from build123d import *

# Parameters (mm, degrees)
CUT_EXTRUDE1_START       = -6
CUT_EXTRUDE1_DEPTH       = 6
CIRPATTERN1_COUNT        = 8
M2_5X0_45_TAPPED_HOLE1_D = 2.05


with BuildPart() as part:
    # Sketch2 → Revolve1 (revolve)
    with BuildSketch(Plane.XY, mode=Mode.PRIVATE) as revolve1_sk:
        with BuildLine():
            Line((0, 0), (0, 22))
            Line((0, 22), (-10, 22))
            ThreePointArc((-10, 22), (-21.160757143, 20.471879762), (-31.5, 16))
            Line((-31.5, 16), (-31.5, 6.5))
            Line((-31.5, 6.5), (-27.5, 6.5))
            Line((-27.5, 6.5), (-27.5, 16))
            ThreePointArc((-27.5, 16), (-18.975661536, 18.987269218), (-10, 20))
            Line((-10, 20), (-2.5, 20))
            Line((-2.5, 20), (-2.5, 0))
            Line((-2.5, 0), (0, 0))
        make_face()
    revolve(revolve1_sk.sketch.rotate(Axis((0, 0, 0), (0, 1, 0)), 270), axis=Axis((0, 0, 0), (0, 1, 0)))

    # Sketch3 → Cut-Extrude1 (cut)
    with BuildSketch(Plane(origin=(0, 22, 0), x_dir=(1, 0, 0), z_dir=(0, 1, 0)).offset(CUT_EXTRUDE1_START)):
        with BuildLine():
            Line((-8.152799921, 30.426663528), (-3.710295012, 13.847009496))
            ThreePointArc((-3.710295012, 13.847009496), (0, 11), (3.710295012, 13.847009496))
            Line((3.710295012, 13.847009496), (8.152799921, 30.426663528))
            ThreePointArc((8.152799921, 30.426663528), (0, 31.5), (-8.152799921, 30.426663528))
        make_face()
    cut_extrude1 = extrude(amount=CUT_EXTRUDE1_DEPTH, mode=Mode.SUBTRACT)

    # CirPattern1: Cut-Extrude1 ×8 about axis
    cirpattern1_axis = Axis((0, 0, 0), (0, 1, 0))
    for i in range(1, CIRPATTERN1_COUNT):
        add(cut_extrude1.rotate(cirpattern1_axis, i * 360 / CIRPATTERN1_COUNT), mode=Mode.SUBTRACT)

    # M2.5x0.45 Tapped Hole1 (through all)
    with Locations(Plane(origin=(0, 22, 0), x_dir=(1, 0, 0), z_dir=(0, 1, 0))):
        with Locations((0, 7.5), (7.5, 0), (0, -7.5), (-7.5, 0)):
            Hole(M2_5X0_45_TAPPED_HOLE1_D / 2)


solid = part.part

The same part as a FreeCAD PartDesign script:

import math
import FreeCAD as App
import Part
import Sketcher
from FreeCAD import Vector
Q = App.Units.Quantity

doc = App.newDocument("Part")
body = doc.addObject("PartDesign::Body", "Body")

sketch1 = body.newObject("Sketcher::SketchObject", "Sketch")
sketch1.AttachmentSupport = (doc.getObject("XY_Plane"), [""])
sketch1.MapMode = "FlatFace"
sketch1.addGeometry([
    Part.LineSegment(Vector(0, 0, 0), Vector(0, 22, 0)),
    Part.LineSegment(Vector(0, 22, 0), Vector(-10, 22, 0)),
    Part.ArcOfCircle(Part.Circle(Vector(-10, -19.520833, 0), Vector(0, 0, 1), 41.520833), math.radians(90), math.radians(121.185622)),
    Part.LineSegment(Vector(-31.5, 16, 0), Vector(-31.5, 6.5, 0)),
    Part.LineSegment(Vector(-31.5, 6.5, 0), Vector(-27.5, 6.5, 0)),
    Part.LineSegment(Vector(-27.5, 6.5, 0), Vector(-27.5, 16, 0)),
    Part.ArcOfCircle(Part.Circle(Vector(-10, -20.28125, 0), Vector(0, 0, 1), 40.28125), math.radians(90), math.radians(115.750003)),
    Part.LineSegment(Vector(-10, 20, 0), Vector(-2.5, 20, 0)),
    Part.LineSegment(Vector(-2.5, 20, 0), Vector(-2.5, 0, 0)),
    Part.LineSegment(Vector(-2.5, 0, 0), Vector(0, 0, 0)),
], False)
sketch1.addConstraint([
    Sketcher.Constraint("Coincident", 0, 2, 1, 1),
    Sketcher.Constraint("Tangent", 1, 2, 2, 1),
    Sketcher.Constraint("Coincident", 2, 2, 3, 1),
    Sketcher.Constraint("Coincident", 3, 2, 4, 1),
    Sketcher.Constraint("Coincident", 4, 2, 5, 1),
    Sketcher.Constraint("Coincident", 5, 2, 6, 2),
    Sketcher.Constraint("Tangent", 6, 1, 7, 1),
    Sketcher.Constraint("Coincident", 7, 2, 8, 1),
    Sketcher.Constraint("Coincident", 8, 2, 9, 1),
    Sketcher.Constraint("Coincident", 9, 2, 0, 1),
    Sketcher.Constraint("Vertical", 0),
    Sketcher.Constraint("Horizontal", 1),
    Sketcher.Constraint("Vertical", 3),
    Sketcher.Constraint("Horizontal", 4),
    Sketcher.Constraint("Vertical", 5),
    Sketcher.Constraint("Horizontal", 7),
    Sketcher.Constraint("Vertical", 8),
    Sketcher.Constraint("Horizontal", 9),
    Sketcher.Constraint("Coincident", 9, 2, -1, 1),
    Sketcher.Constraint("Horizontal", 2, 2, 5, 2),
    Sketcher.Constraint("Vertical", 2, 3, 6, 3),
    Sketcher.Constraint("DistanceX", 1, 2, 1, 1, Q("10 mm")),
    Sketcher.Constraint("DistanceX", 4, 1, 4, 2, Q("4 mm")),
    Sketcher.Constraint("DistanceY", 0, 1, 0, 2, Q("22 mm")),
    Sketcher.Constraint("DistanceY", 8, 2, 8, 1, Q("20 mm")),
    Sketcher.Constraint("DistanceX", 7, 1, 7, 2, Q("7.5 mm")),
    Sketcher.Constraint("DistanceY", 3, 2, 3, 1, Q("9.5 mm")),
    Sketcher.Constraint("DistanceY", -1, 1, 2, 2, Q("16 mm")),
    Sketcher.Constraint("DistanceX", 5, 2, 7, 2, Q("25 mm")),
])
revolution = body.newObject("PartDesign::Revolution", "Revolution")
revolution.Profile = sketch1
revolution.ReferenceAxis = (sketch1, ["V_Axis"])
revolution.Angle = 360

sketch2 = body.newObject("Sketcher::SketchObject", "Sketch001")
sketch2.AttachmentSupport = (doc.getObject("XZ_Plane"), [""])
sketch2.MapMode = "FlatFace"
sketch2.AttachmentOffset = App.Placement(Vector(0, 0, -16), App.Rotation())
sketch2.addGeometry([
    Part.LineSegment(Vector(-8.1528, -30.426664, 0), Vector(-3.710295, -13.847009, 0)),
    Part.ArcOfCircle(Part.Circle(Vector(0, -14.84118, 0), Vector(0, 0, 1), 3.84118), math.radians(15), math.radians(165)),
    Part.LineSegment(Vector(3.710295, -13.847009, 0), Vector(8.1528, -30.426664, 0)),
    Part.ArcOfCircle(Part.Circle(Vector(0, 0, 0), Vector(0, 0, 1), 31.5), math.radians(-105), math.radians(-75)),
], False)
sketch2.addConstraint([
    Sketcher.Constraint("Tangent", 0, 2, 1, 2),
    Sketcher.Constraint("Tangent", 1, 1, 2, 1),
    Sketcher.Constraint("Coincident", 2, 2, 3, 2),
    Sketcher.Constraint("Coincident", 3, 1, 0, 1),
    Sketcher.Constraint("Coincident", 3, 3, -1, 1),
    Sketcher.Constraint("Symmetric", 0, 2, 1, 1, -2),
    Sketcher.Constraint("Radius", 3, Q("31.5 mm")),
    Sketcher.Constraint("Angle", 0, Q("75 deg")),
    Sketcher.Constraint("Radius", 1, Q("3.84118 mm")),
    Sketcher.Constraint("DistanceX", -1, 1, 2, 2, Q("8.1528 mm")),
])
pocket1 = body.newObject("PartDesign::Pocket", "Pocket")
pocket1.Profile = sketch2
pocket1.Length = 6
doc.recompute()

polarpattern = body.newObject("PartDesign::PolarPattern", "PolarPattern")
polarpattern.Originals = [pocket1]
polarpattern.Axis = (doc.getObject("Y_Axis"), [""])
polarpattern.Angle = 360
polarpattern.Occurrences = 8
body.Tip = polarpattern

sketch3 = body.newObject("Sketcher::SketchObject", "Sketch002")
sketch3.AttachmentSupport = (doc.getObject("XZ_Plane"), [""])
sketch3.MapMode = "FlatFace"
sketch3.AttachmentOffset = App.Placement(Vector(0, 0, -22), App.Rotation())
sketch3.addGeometry([
    Part.Circle(Vector(0, -7.5, 0), Vector(0, 0, 1), 1.025),
    Part.Circle(Vector(7.5, 0, 0), Vector(0, 0, 1), 1.025),
    Part.Circle(Vector(0, 7.5, 0), Vector(0, 0, 1), 1.025),
    Part.Circle(Vector(-7.5, 0, 0), Vector(0, 0, 1), 1.025),
], False)
sketch3.addConstraint([
    Sketcher.Constraint("Equal", 0, 1),
    Sketcher.Constraint("Equal", 1, 2),
    Sketcher.Constraint("Equal", 2, 3),
    Sketcher.Constraint("Symmetric", 0, 3, 2, 3, -1, 1),
    Sketcher.Constraint("Symmetric", 1, 3, 3, 3, -1, 1),
    Sketcher.Constraint("PointOnObject", 0, 3, -2),
    Sketcher.Constraint("PointOnObject", 1, 3, -1),
    Sketcher.Constraint("Diameter", 0, Q("2.05 mm")),
    Sketcher.Constraint("DistanceY", 0, 3, 2, 3, Q("15 mm")),
    Sketcher.Constraint("DistanceX", 3, 3, 1, 3, Q("15 mm")),
])
doc.recompute()
hole = body.newObject("PartDesign::Hole", "Hole")
hole.Profile = sketch3
hole.ThreadType = "None"
hole.Diameter = 2.05
hole.DepthType = "ThroughAll"
hole.Reversed = True

doc.recompute()
